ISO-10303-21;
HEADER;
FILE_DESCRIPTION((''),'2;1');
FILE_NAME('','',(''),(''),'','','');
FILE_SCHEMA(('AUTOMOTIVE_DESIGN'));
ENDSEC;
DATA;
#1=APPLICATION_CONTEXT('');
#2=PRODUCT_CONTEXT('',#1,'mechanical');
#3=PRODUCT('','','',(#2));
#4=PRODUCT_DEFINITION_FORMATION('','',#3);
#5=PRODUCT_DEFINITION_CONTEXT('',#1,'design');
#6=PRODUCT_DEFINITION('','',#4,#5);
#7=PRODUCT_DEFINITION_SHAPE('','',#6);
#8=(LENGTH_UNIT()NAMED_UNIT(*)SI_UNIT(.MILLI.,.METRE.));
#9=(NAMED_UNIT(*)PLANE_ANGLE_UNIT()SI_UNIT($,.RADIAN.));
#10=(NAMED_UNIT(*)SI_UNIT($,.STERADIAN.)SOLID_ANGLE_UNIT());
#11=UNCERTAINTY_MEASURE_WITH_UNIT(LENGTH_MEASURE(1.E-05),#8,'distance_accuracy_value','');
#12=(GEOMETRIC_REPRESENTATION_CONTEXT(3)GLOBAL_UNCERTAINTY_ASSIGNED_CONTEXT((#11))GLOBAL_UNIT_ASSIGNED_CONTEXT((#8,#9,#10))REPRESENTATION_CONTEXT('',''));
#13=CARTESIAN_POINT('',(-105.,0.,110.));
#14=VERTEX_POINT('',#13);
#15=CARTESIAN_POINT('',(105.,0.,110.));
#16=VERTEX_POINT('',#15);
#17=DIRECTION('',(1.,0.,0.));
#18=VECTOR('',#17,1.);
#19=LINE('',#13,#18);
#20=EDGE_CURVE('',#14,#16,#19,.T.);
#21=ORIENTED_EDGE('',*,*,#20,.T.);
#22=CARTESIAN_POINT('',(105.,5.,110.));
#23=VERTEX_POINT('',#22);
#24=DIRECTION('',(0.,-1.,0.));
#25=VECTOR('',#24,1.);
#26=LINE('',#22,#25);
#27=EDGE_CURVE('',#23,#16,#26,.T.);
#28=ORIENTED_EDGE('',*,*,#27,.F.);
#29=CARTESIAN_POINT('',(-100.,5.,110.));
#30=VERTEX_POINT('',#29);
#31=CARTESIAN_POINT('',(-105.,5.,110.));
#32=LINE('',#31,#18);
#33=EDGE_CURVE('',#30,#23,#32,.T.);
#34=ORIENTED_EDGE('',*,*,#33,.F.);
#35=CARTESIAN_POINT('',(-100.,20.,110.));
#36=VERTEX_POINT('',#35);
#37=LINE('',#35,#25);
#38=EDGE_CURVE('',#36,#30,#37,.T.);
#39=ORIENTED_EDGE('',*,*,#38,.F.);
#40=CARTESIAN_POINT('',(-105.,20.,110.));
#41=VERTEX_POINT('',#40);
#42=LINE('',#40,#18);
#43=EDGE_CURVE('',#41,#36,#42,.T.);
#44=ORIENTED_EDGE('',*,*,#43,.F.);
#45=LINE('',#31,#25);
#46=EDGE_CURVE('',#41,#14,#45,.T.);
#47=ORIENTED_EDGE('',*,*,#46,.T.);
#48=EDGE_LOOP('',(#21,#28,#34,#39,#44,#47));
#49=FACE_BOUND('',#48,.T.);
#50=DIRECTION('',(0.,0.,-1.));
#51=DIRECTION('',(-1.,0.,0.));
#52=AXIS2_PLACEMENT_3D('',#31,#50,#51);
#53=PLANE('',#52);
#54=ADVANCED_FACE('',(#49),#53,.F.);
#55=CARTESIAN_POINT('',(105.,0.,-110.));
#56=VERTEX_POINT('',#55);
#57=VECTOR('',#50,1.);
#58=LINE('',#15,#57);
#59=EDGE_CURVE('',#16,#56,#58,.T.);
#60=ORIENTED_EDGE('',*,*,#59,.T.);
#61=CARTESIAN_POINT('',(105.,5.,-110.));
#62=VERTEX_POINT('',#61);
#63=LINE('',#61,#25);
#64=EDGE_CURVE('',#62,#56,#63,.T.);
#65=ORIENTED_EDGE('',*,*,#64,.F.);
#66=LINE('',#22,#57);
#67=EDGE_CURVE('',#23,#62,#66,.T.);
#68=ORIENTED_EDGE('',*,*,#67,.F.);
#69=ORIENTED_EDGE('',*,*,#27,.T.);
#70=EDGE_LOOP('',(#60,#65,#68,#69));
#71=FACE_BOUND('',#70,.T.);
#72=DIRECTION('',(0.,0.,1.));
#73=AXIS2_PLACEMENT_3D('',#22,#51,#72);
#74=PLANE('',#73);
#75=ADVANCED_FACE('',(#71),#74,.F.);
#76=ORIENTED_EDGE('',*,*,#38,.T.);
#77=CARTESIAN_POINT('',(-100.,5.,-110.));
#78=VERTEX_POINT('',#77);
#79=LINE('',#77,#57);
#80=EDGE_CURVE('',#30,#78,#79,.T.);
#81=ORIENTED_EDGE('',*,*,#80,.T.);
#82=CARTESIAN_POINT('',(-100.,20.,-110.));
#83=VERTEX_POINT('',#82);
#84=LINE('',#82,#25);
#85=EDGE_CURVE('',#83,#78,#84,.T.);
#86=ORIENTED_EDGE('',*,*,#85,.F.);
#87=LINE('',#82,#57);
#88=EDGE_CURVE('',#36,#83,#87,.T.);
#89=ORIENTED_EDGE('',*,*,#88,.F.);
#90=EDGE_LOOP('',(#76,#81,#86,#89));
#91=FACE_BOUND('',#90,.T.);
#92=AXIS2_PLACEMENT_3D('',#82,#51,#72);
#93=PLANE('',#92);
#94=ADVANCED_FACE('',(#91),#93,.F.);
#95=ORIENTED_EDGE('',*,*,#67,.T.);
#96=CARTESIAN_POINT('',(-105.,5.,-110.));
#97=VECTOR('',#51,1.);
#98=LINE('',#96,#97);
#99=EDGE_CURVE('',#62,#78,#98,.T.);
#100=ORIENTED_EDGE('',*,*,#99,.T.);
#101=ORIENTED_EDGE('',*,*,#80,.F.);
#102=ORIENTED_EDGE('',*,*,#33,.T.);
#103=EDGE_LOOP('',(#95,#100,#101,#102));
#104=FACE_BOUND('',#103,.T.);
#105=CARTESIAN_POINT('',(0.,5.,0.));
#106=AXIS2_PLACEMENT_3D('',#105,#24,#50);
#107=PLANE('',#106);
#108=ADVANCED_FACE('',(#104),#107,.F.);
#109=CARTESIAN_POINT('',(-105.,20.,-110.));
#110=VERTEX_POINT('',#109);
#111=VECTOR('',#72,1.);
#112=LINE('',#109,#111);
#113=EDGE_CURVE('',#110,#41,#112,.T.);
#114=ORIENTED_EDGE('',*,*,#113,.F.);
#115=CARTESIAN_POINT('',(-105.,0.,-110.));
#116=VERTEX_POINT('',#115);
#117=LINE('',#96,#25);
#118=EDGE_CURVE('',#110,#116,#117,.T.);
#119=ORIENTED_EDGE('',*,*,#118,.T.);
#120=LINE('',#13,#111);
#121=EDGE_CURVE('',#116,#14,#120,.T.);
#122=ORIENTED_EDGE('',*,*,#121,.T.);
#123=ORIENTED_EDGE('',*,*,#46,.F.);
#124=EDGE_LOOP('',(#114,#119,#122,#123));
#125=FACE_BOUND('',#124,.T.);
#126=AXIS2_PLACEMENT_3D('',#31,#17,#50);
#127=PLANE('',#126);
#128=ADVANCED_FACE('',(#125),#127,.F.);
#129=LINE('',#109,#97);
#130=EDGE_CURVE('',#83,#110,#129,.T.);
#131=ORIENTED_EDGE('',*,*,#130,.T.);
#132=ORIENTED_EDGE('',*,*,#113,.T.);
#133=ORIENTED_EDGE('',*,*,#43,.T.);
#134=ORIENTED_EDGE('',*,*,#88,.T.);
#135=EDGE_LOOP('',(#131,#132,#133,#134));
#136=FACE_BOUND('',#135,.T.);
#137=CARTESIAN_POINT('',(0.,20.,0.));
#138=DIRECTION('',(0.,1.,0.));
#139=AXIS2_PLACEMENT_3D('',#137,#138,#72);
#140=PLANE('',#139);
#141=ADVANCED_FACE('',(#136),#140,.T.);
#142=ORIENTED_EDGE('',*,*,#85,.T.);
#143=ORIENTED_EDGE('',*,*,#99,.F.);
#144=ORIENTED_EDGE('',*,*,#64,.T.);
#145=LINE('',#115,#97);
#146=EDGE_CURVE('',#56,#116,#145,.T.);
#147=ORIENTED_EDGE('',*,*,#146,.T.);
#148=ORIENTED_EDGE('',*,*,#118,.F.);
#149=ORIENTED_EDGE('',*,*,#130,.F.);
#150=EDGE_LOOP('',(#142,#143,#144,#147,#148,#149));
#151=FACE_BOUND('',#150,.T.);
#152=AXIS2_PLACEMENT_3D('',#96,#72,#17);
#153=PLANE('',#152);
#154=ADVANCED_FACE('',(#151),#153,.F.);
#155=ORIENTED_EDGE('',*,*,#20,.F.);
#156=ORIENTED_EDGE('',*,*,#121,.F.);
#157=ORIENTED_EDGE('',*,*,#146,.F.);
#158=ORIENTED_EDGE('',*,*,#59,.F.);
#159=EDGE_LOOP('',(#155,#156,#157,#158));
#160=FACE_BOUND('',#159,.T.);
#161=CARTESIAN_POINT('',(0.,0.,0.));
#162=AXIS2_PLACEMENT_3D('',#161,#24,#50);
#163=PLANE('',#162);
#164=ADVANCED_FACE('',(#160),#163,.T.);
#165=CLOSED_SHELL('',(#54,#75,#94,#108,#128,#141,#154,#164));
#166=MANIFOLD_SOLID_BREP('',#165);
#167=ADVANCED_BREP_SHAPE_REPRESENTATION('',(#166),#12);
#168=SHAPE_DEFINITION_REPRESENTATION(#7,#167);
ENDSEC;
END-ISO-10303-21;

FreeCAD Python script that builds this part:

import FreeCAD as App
import Part
import Sketcher
from FreeCAD import Vector
Q = App.Units.Quantity

doc = App.newDocument("Part")
body = doc.addObject("PartDesign::Body", "Body")

sketch1 = body.newObject("Sketcher::SketchObject", "Sketch")
sketch1.AttachmentSupport = (doc.getObject("XZ_Plane"), [""])
sketch1.MapMode = "FlatFace"
sketch1.addGeometry([
    Part.LineSegment(Vector(-105, -110, 0), Vector(-105, 110, 0)),
    Part.LineSegment(Vector(-105, 110, 0), Vector(105, 110, 0)),
    Part.LineSegment(Vector(105, 110, 0), Vector(105, -110, 0)),
    Part.LineSegment(Vector(105, -110, 0), Vector(-105, -110, 0)),
], False)
sketch1.addConstraint([
    Sketcher.Constraint("Coincident", 0, 2, 1, 1),
    Sketcher.Constraint("Coincident", 1, 2, 2, 1),
    Sketcher.Constraint("Coincident", 2, 2, 3, 1),
    Sketcher.Constraint("Coincident", 3, 2, 0, 1),
    Sketcher.Constraint("Vertical", 0),
    Sketcher.Constraint("Horizontal", 1),
    Sketcher.Constraint("Vertical", 2),
    Sketcher.Constraint("Horizontal", 3),
    Sketcher.Constraint("Symmetric", 0, 2, 2, 2, -1, 1),
    Sketcher.Constraint("DistanceX", 1, 1, 1, 2, Q("210 mm")),
    Sketcher.Constraint("DistanceY", 0, 1, 0, 2, Q("220 mm")),
])
pad1 = body.newObject("PartDesign::Pad", "Pad")
pad1.Profile = sketch1
pad1.Length = 5
pad1.Reversed = True

sketch2 = body.newObject("Sketcher::SketchObject", "Sketch001")
sketch2.AttachmentSupport = (doc.getObject("XZ_Plane"), [""])
sketch2.MapMode = "FlatFace"
sketch2.AttachmentOffset = App.Placement(Vector(0, 0, -5), App.Rotation())
sketch2.addGeometry([
    Part.LineSegment(Vector(-105, -110, 0), Vector(-105, 110, 0)),
    Part.LineSegment(Vector(-105, 110, 0), Vector(-100, 110, 0)),
    Part.LineSegment(Vector(-100, 110, 0), Vector(-100, -110, 0)),
    Part.LineSegment(Vector(-100, -110, 0), Vector(-105, -110, 0)),
], False)
sketch2.addConstraint([
    Sketcher.Constraint("Coincident", 0, 2, 1, 1),
    Sketcher.Constraint("Coincident", 1, 2, 2, 1),
    Sketcher.Constraint("Coincident", 2, 2, 3, 1),
    Sketcher.Constraint("Coincident", 3, 2, 0, 1),
    Sketcher.Constraint("Vertical", 0),
    Sketcher.Constraint("Horizontal", 1),
    Sketcher.Constraint("Vertical", 2),
    Sketcher.Constraint("Horizontal", 3),
    Sketcher.Constraint("DistanceX", 1, 1, 1, 2, Q("5 mm")),
    Sketcher.Constraint("DistanceY", 0, 1, 0, 2, Q("220 mm")),
    Sketcher.Constraint("DistanceX", 0, 2, -1, 1, Q("105 mm")),
    Sketcher.Constraint("DistanceY", -1, 1, 0, 2, Q("110 mm")),
])
pad2 = body.newObject("PartDesign::Pad", "Pad001")
pad2.Profile = sketch2
pad2.Length = 15
pad2.Reversed = True

doc.recompute()
